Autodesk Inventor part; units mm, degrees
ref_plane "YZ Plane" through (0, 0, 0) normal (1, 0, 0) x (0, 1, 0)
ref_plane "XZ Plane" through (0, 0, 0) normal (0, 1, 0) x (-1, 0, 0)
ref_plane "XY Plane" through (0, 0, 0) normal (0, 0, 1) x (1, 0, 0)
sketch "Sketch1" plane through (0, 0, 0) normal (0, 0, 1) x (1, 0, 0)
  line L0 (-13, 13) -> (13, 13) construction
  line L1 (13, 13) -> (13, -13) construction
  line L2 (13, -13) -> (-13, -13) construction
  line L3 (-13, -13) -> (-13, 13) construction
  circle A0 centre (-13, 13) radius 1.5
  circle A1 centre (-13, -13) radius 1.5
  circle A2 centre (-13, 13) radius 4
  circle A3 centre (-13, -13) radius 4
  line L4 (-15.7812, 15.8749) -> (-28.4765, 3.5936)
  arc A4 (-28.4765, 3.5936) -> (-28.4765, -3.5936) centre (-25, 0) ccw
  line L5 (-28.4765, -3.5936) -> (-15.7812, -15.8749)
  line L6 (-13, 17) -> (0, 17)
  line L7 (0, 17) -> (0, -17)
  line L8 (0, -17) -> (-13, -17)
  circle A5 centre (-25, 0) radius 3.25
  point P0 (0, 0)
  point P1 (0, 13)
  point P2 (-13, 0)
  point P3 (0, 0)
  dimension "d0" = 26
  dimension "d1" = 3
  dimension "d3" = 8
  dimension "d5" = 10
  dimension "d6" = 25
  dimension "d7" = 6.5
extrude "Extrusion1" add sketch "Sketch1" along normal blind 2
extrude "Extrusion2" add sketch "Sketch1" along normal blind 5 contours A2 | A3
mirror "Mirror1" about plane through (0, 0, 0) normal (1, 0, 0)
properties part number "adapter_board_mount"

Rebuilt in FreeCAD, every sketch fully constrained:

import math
import FreeCAD as App
import Part
import Sketcher

V = App.Vector

doc = App.newDocument("Part")
params = doc.addObject("Spreadsheet::Sheet", "Params")
for row, (alias, value) in enumerate([
    ("sketch1_diameter", "3 mm"),
    ("sketch1_radius", "4 mm"),
    ("sketch1_radius2", "5 mm"),
    ("sketch1_diameter2", "6.5 mm"),
    ("sketch1_width", "13 mm"),
    ("pad1_length", "2 mm"),
    ("sketch2_diameter", "8 mm"),
    ("sketch2_diameter2", "3 mm"),
    ("pad2_length", "5 mm"),
], start=1):
    params.set(f"A{row}", alias)
    params.set(f"B{row}", "=" + value)
    params.setAlias(f"B{row}", alias)

body = doc.addObject("PartDesign::Body", "Body")

sketch1 = body.newObject("Sketcher::SketchObject", "Sketch")
sketch1.AttachmentSupport = (doc.getObject("XY_Plane"), [""])
sketch1.MapMode = "FlatFace"
sketch1.addGeometry([
    Part.ArcOfCircle(Part.Circle(V(-13, 13, 0), V(0, 0, 1), 4), math.radians(90), math.radians(134)),
    Part.LineSegment(V(-15.8, 15.9, 0), V(-28.5, 3.6, 0)),
    Part.ArcOfCircle(Part.Circle(V(-25, 0, 0), V(0, 0, 1), 5), math.radians(134), math.radians(226)),
    Part.LineSegment(V(-28.5, -3.6, 0), V(-15.8, -15.9, 0)),
    Part.ArcOfCircle(Part.Circle(V(-13, -13, 0), V(0, 0, 1), 4), math.radians(-134), math.radians(-90)),
    Part.LineSegment(V(-13, -17, 0), V(0, -17, 0)),
    Part.LineSegment(V(0, -17, 0), V(0, 17, 0)),
    Part.LineSegment(V(0, 17, 0), V(-13, 17, 0)),
    Part.Circle(V(-13, 13, 0), V(0, 0, 1), 1.5),
    Part.Circle(V(-25, 0, 0), V(0, 0, 1), 3.2),
    Part.Circle(V(-13, -13, 0), V(0, 0, 1), 1.5),
], False)
sketch1.addConstraint([
    Sketcher.Constraint("Tangent", 0, 2, 1, 1),
    Sketcher.Constraint("Tangent", 1, 2, 2, 1),
    Sketcher.Constraint("Tangent", 2, 2, 3, 1),
    Sketcher.Constraint("Tangent", 3, 2, 4, 1),
    Sketcher.Constraint("Tangent", 4, 2, 5, 1),
    Sketcher.Constraint("Coincident", 5, 2, 6, 1),
    Sketcher.Constraint("Coincident", 6, 2, 7, 1),
    Sketcher.Constraint("Tangent", 7, 2, 0, 1),
    Sketcher.Constraint("Horizontal", 5),
    Sketcher.Constraint("Vertical", 6),
    Sketcher.Constraint("Horizontal", 7),
    Sketcher.Constraint("Coincident", 8, 3, 0, 3),
    Sketcher.Constraint("Coincident", 9, 3, 2, 3),
    Sketcher.Constraint("Coincident", 10, 3, 4, 3),
    Sketcher.Constraint("Equal", 0, 4),
    Sketcher.Constraint("Equal", 8, 10),
    Sketcher.Constraint("Symmetric", 5, 2, 6, 2, -1, 1),
    Sketcher.Constraint("Symmetric", 1, 2, 2, 2, -1),
    Sketcher.Constraint("Diameter", 8, 3.0),
    Sketcher.Constraint("Radius", 0, 4.0),
    Sketcher.Constraint("Radius", 2, 5.0),
    Sketcher.Constraint("Diameter", 9, 6.5),
    Sketcher.Constraint("DistanceX", 2, 3, -1, 1, 25.0),
    Sketcher.Constraint("DistanceY", 4, 3, 0, 3, 26.0),
    Sketcher.Constraint("DistanceX", 5, 1, 5, 2, 13.0),
])
sketch1.setExpression("Constraints[18]", "Params.sketch1_diameter")
sketch1.setExpression("Constraints[19]", "Params.sketch1_radius")
sketch1.setExpression("Constraints[20]", "Params.sketch1_radius2")
sketch1.setExpression("Constraints[21]", "Params.sketch1_diameter2")
sketch1.setExpression("Constraints[24]", "Params.sketch1_width")
pad1 = body.newObject("PartDesign::Pad", "Pad")
pad1.Profile = sketch1
pad1.setExpression("Length", "Params.pad1_length")

sketch2 = body.newObject("Sketcher::SketchObject", "Sketch001")
sketch2.AttachmentSupport = (doc.getObject("XY_Plane"), [""])
sketch2.MapMode = "FlatFace"
sketch2.addGeometry([
    Part.Circle(V(-13, 13, 0), V(0, 0, 1), 4),
    Part.Circle(V(-13, 13, 0), V(0, 0, 1), 1.5),
    Part.Circle(V(-13, -13, 0), V(0, 0, 1), 4),
    Part.Circle(V(-13, -13, 0), V(0, 0, 1), 1.5),
], False)
sketch2.addConstraint([
    Sketcher.Constraint("Coincident", 1, 3, 0, 3),
    Sketcher.Constraint("Coincident", 3, 3, 2, 3),
    Sketcher.Constraint("Equal", 0, 2),
    Sketcher.Constraint("Equal", 1, 3),
    Sketcher.Constraint("Symmetric", 0, 3, 2, 3, -1),
    Sketcher.Constraint("Diameter", 0, 8.0),
    Sketcher.Constraint("Diameter", 1, 3.0),
    Sketcher.Constraint("DistanceY", 2, 3, 0, 3, 26.0),
    Sketcher.Constraint("DistanceX", 0, 3, -1, 1, 13.0),
])
sketch2.setExpression("Constraints[5]", "Params.sketch2_diameter")
sketch2.setExpression("Constraints[6]", "Params.sketch2_diameter2")
pad2 = body.newObject("PartDesign::Pad", "Pad001")
pad2.Profile = sketch2
pad2.setExpression("Length", "Params.pad2_length")
doc.recompute()

mirrored = body.newObject("PartDesign::Mirrored", "Mirrored")
mirrored.TransformMode = "Transform body"
mirrored.MirrorPlane = (doc.getObject("YZ_Plane"), [""])
body.Tip = mirrored

doc.recompute()
